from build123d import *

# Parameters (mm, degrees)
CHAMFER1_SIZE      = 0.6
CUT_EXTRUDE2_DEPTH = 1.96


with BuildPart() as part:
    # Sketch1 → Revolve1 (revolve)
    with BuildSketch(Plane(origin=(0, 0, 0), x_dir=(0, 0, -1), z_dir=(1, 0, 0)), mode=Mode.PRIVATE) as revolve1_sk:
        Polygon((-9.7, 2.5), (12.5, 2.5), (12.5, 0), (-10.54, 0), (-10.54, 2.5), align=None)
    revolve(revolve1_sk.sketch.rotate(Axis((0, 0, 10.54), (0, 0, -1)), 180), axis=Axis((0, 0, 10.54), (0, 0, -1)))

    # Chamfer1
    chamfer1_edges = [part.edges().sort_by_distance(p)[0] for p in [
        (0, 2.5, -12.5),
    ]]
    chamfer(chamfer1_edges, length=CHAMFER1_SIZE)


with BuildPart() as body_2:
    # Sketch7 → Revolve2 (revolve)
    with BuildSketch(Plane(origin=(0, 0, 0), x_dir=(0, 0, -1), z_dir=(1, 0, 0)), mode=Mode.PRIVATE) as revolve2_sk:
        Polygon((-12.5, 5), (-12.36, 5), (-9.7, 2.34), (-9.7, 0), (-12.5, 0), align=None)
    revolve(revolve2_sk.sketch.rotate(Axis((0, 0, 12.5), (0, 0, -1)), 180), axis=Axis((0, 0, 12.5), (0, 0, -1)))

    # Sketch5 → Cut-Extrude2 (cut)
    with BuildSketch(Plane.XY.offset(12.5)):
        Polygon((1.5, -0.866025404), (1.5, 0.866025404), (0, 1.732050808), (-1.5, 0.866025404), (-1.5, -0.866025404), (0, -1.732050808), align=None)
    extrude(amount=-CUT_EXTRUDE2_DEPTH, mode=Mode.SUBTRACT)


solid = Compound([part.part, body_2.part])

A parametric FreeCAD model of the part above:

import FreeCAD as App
import Part
import Sketcher

V = App.Vector
Q = App.Units.Quantity


def edges_at(feature, points):
    """Names of the edges that pass closest to the given points."""
    edges = feature.Shape.Edges
    near = lambda p: min(range(len(edges)), key=lambda i: edges[i].distToShape(Part.Vertex(*p))[0])
    return sorted({f"Edge{near(p) + 1}" for p in points})

doc = App.newDocument("Part")
body = doc.addObject("PartDesign::Body", "Body")

sketch1 = body.newObject("Sketcher::SketchObject", "Sketch")
sketch1.AttachmentSupport = (doc.getObject("YZ_Plane"), [""])
sketch1.MapMode = "FlatFace"
sketch1.addGeometry([
    Part.LineSegment(V(2.5, -12.5, 0), V(2.5, 10.5, 0)),
    Part.LineSegment(V(2.5, 10.5, 0), V(0, 10.5, 0)),
    Part.LineSegment(V(0, 10.5, 0), V(0, -12.5, 0)),
    Part.LineSegment(V(0, -12.5, 0), V(2.5, -12.5, 0)),
], False)
sketch1.addConstraint([
    Sketcher.Constraint("Coincident", 0, 2, 1, 1),
    Sketcher.Constraint("Coincident", 1, 2, 2, 1),
    Sketcher.Constraint("Coincident", 2, 2, 3, 1),
    Sketcher.Constraint("Coincident", 3, 2, 0, 1),
    Sketcher.Constraint("Vertical", 0),
    Sketcher.Constraint("Horizontal", 1),
    Sketcher.Constraint("Vertical", 2),
    Sketcher.Constraint("Horizontal", 3),
    Sketcher.Constraint("PointOnObject", 1, 2, -2),
    Sketcher.Constraint("DistanceX", 1, 2, 1, 1, 2.5),
    Sketcher.Constraint("DistanceY", 0, 1, 0, 2, 23.04),
    Sketcher.Constraint("DistanceY", 2, 2, -1, 1, 12.5),
])
revolution = body.newObject("PartDesign::Revolution", "Revolution")
revolution.Profile = sketch1
revolution.ReferenceAxis = (sketch1, ["V_Axis"])
revolution.Angle = 360
doc.recompute()

chamfer = body.newObject("PartDesign::Chamfer", "Chamfer")
chamfer.Base = (revolution, edges_at(revolution, [(0, 2.5, -12.5)]))
chamfer.Size = 0.6
body2 = doc.addObject("PartDesign::Body", "Body001")

sketch2 = body2.newObject("Sketcher::SketchObject", "Sketch001")
sketch2.AttachmentSupport = (doc.getObject("YZ_Plane001"), [""])
sketch2.MapMode = "FlatFace"
sketch2.addGeometry([
    Part.LineSegment(V(5, 12.36, 0), V(5, 12.5, 0)),
    Part.LineSegment(V(5, 12.5, 0), V(0, 12.5, 0)),
    Part.LineSegment(V(0, 12.5, 0), V(0, 9.7, 0)),
    Part.LineSegment(V(0, 9.7, 0), V(2.34, 9.7, 0)),
    Part.LineSegment(V(2.34, 9.7, 0), V(5, 12.36, 0)),
], False)
sketch2.addConstraint([
    Sketcher.Constraint("Coincident", 0, 2, 1, 1),
    Sketcher.Constraint("Coincident", 1, 2, 2, 1),
    Sketcher.Constraint("Coincident", 2, 2, 3, 1),
    Sketcher.Constraint("Coincident", 3, 2, 4, 1),
    Sketcher.Constraint("Coincident", 4, 2, 0, 1),
    Sketcher.Constraint("Vertical", 0),
    Sketcher.Constraint("Horizontal", 1),
    Sketcher.Constraint("Vertical", 2),
    Sketcher.Constraint("Horizontal", 3),
    Sketcher.Constraint("PointOnObject", 1, 2, -2),
    Sketcher.Constraint("DistanceX", 1, 2, 1, 1, 5.0),
    Sketcher.Constraint("Angle", 4, Q("45 deg")),
    Sketcher.Constraint("DistanceY", 2, 2, 2, 1, 2.8),
    Sketcher.Constraint("DistanceX", 3, 1, 3, 2, 2.34),
    Sketcher.Constraint("DistanceY", -1, 1, 0, 2, 12.5),
])
revolution2 = body2.newObject("PartDesign::Revolution", "Revolution001")
revolution2.Profile = sketch2
revolution2.ReferenceAxis = (sketch2, ["V_Axis"])
revolution2.Angle = 360

sketch3 = body2.newObject("Sketcher::SketchObject", "Sketch002")
sketch3.AttachmentSupport = (doc.getObject("XY_Plane001"), [""])
sketch3.MapMode = "FlatFace"
sketch3.AttachmentOffset = App.Placement(V(0, 0, 12.5), App.Rotation())
sketch3.addGeometry([
    Part.LineSegment(V(1.5, -0.9, 0), V(1.5, 0.9, 0)),
    Part.LineSegment(V(1.5, 0.9, 0), V(0, 1.7, 0)),
    Part.LineSegment(V(0, 1.7, 0), V(-1.5, 0.9, 0)),
    Part.LineSegment(V(-1.5, 0.9, 0), V(-1.5, -0.9, 0)),
    Part.LineSegment(V(-1.5, -0.9, 0), V(0, -1.7, 0)),
    Part.LineSegment(V(0, -1.7, 0), V(1.5, -0.9, 0)),
], False)
sketch3.addConstraint([
    Sketcher.Constraint("Coincident", 0, 2, 1, 1),
    Sketcher.Constraint("Coincident", 1, 2, 2, 1),
    Sketcher.Constraint("Coincident", 2, 2, 3, 1),
    Sketcher.Constraint("Coincident", 3, 2, 4, 1),
    Sketcher.Constraint("Coincident", 4, 2, 5, 1),
    Sketcher.Constraint("Coincident", 5, 2, 0, 1),
    Sketcher.Constraint("Vertical", 0),
    Sketcher.Constraint("Vertical", 3),
    Sketcher.Constraint("Symmetric", 0, 2, 3, 2, -1, 1),
    Sketcher.Constraint("Symmetric", 1, 2, 4, 2, -1, 1),
    Sketcher.Constraint("PointOnObject", 1, 2, -2),
    Sketcher.Constraint("Parallel", 2, 5),
    Sketcher.Constraint("Horizontal", 0, 2, 2, 2),
    Sketcher.Constraint("Angle", 1, Q("150 deg")),
    Sketcher.Constraint("DistanceX", 2, 2, 0, 2, 3.0),
    Sketcher.Constraint("DistanceY", 0, 1, 0, 2, 1.732051),
])
pocket1 = body2.newObject("PartDesign::Pocket", "Pocket")
pocket1.Profile = sketch3
pocket1.Length = 1.96

doc.recompute()
